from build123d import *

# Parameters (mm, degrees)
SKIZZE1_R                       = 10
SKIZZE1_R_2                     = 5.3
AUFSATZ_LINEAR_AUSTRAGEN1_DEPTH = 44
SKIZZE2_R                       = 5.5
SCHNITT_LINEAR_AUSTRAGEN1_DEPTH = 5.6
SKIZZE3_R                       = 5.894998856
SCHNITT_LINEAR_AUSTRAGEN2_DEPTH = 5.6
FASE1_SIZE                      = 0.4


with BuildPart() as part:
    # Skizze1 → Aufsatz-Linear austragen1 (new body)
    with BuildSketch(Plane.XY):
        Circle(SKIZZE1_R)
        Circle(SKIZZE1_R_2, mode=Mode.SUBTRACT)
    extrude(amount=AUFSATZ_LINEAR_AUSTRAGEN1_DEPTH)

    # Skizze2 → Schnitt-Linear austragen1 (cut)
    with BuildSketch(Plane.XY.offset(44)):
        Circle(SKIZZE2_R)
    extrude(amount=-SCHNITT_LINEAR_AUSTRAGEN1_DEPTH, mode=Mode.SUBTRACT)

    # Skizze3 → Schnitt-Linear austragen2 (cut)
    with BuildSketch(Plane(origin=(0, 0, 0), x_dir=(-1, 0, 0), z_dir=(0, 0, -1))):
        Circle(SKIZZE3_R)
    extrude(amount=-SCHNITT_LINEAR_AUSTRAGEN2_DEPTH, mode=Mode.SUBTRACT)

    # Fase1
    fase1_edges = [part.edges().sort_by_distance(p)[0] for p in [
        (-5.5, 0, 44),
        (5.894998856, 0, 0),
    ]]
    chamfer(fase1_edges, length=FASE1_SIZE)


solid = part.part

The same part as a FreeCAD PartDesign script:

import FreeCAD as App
import Part
import Sketcher
from FreeCAD import Vector


def edges_at(feature, points):
    """Names of the edges that pass closest to the given points."""
    edges = feature.Shape.Edges
    near = lambda p: min(range(len(edges)), key=lambda i: edges[i].distToShape(Part.Vertex(*p))[0])
    return sorted({f"Edge{near(p) + 1}" for p in points})

doc = App.newDocument("Part")
body = doc.addObject("PartDesign::Body", "Body")

# Sketch on XY plane
sketch1 = doc.addObject("Sketcher::SketchObject", "Sketch")
body.addObject(sketch1)
sketch1.AttachmentSupport = (doc.XY_Plane, [""])
sketch1.MapMode = "FlatFace"
sketch1.addGeometry([
    Part.Circle(Vector(0, 0, 0), Vector(0, 0, 1), 10),
    Part.Circle(Vector(0, 0, 0), Vector(0, 0, 1), 5),
], False)
sketch1.addConstraint([
    Sketcher.Constraint("Coincident", 0, 3, -1, 1),
    Sketcher.Constraint("Coincident", 1, 3, -1, 1),
    Sketcher.Constraint("Diameter", 0, 20.0),
    Sketcher.Constraint("Diameter", 1, 10.6),
])
pad1 = doc.addObject("PartDesign::Pad", "Pad")
body.addObject(pad1)
pad1.Profile = sketch1
pad1.Length = 44

# Sketch on XY plane
sketch2 = doc.addObject("Sketcher::SketchObject", "Sketch001")
body.addObject(sketch2)
sketch2.AttachmentSupport = (doc.XY_Plane, [""])
sketch2.MapMode = "FlatFace"
sketch2.AttachmentOffset = App.Placement(Vector(0, 0, 44), App.Rotation())
sketch2.addGeometry(Part.Circle(Vector(0, 0, 0), Vector(0, 0, 1), 6), False)
sketch2.addConstraint([
    Sketcher.Constraint("Coincident", 0, 3, -1, 1),
    Sketcher.Constraint("Diameter", 0, 11.0),
])
pocket1 = doc.addObject("PartDesign::Pocket", "Pocket")
body.addObject(pocket1)
pocket1.Profile = sketch2
pocket1.Length = 5.6

# Sketch on XY plane
sketch3 = doc.addObject("Sketcher::SketchObject", "Sketch002")
body.addObject(sketch3)
sketch3.AttachmentSupport = (doc.XY_Plane, [""])
sketch3.MapMode = "FlatFace"
sketch3.addGeometry(Part.Circle(Vector(0, 0, 0), Vector(0, 0, 1), 6), False)
sketch3.addConstraint([
    Sketcher.Constraint("Coincident", 0, 3, -1, 1),
    Sketcher.Constraint("Diameter", 0, 11.789998),
])
pocket2 = doc.addObject("PartDesign::Pocket", "Pocket001")
body.addObject(pocket2)
pocket2.Profile = sketch3
pocket2.Length = 5.6
pocket2.Reversed = True
doc.recompute()

chamfer = doc.addObject("PartDesign::Chamfer", "Chamfer")
body.addObject(chamfer)
chamfer.Base = (pocket2, edges_at(pocket2, [(-5.5, 0, 44), (5.895, 0, 0)]))
chamfer.Size = 0.4

doc.recompute()
